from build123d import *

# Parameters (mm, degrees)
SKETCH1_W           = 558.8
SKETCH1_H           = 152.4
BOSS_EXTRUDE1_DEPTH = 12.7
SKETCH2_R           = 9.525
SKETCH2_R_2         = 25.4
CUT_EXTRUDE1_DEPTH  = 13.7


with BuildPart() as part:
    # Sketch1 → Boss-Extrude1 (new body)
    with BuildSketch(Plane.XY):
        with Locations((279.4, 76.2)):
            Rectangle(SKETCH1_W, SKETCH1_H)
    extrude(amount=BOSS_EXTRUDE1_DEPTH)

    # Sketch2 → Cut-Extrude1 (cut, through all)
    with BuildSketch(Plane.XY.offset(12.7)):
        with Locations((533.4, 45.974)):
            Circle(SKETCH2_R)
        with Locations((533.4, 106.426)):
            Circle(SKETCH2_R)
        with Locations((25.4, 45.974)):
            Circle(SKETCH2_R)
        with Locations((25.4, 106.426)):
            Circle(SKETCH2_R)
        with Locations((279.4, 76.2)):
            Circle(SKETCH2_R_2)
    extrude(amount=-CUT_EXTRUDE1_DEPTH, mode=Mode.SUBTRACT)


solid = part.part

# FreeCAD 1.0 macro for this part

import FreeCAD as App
import Part
import Sketcher

V = App.Vector
Q = App.Units.Quantity

doc = App.newDocument("Part")
params = doc.addObject("Spreadsheet::Sheet", "Params")
for row, (alias, value) in enumerate([
    ("sketch1_width", "22 in"),
    ("sketch1_height", "6 in"),
    ("pad1_length", "0.5 in"),
    ("sketch2_diameter", "2 in"),
    ("sketch2_diameter2", "0.75 in"),
], start=1):
    params.set(f"A{row}", alias)
    params.set(f"B{row}", "=" + value)
    params.setAlias(f"B{row}", alias)

body = doc.addObject("PartDesign::Body", "Body")

# Sketch on XY plane
sketch1 = body.newObject("Sketcher::SketchObject", "Sketch")
sketch1.AttachmentSupport = (doc.getObject("XY_Plane"), [""])
sketch1.MapMode = "FlatFace"
sketch1.addGeometry(Part.LineSegment(V(0, 152.4, 0), V(0, 0, 0)), False)
sketch1.addGeometry(Part.LineSegment(V(0, 0, 0), V(558.8, 0, 0)), False)
sketch1.addGeometry(Part.LineSegment(V(558.8, 0, 0), V(558.8, 152.4, 0)), False)
sketch1.addGeometry(Part.LineSegment(V(558.8, 152.4, 0), V(0, 152.4, 0)), False)
sketch1.addConstraint(Sketcher.Constraint("Coincident", 0, 2, 1, 1))
sketch1.addConstraint(Sketcher.Constraint("Coincident", 1, 2, 2, 1))
sketch1.addConstraint(Sketcher.Constraint("Coincident", 2, 2, 3, 1))
sketch1.addConstraint(Sketcher.Constraint("Coincident", 3, 2, 0, 1))
sketch1.addConstraint(Sketcher.Constraint("Vertical", 0))
sketch1.addConstraint(Sketcher.Constraint("Horizontal", 1))
sketch1.addConstraint(Sketcher.Constraint("Vertical", 2))
sketch1.addConstraint(Sketcher.Constraint("Horizontal", 3))
sketch1.addConstraint(Sketcher.Constraint("Coincident", 0, 2, -1, 1))
sketch1.addConstraint(Sketcher.Constraint("DistanceX", 1, 1, 1, 2, Q("22 in")))
sketch1.addConstraint(Sketcher.Constraint("DistanceY", 0, 2, 0, 1, Q("6 in")))
sketch1.setExpression("Constraints[9]", "Params.sketch1_width")
sketch1.setExpression("Constraints[10]", "Params.sketch1_height")
pad1 = body.newObject("PartDesign::Pad", "Pad")
pad1.Profile = sketch1
pad1.setExpression("Length", "Params.pad1_length")

# Sketch on XY plane
sketch2 = body.newObject("Sketcher::SketchObject", "Sketch001")
sketch2.AttachmentSupport = (doc.getObject("XY_Plane"), [""])
sketch2.MapMode = "FlatFace"
sketch2.AttachmentOffset = App.Placement(V(0, 0, 0.5 * 25.4), App.Rotation())
sketch2.addGeometry(Part.Circle(V(533.4, 45.974, 0), V(0, 0, 1), 9.525), False)
sketch2.addGeometry(Part.Circle(V(533.4, 106.426, 0), V(0, 0, 1), 9.525), False)
sketch2.addGeometry(Part.Circle(V(25.4, 45.974, 0), V(0, 0, 1), 9.525), False)
sketch2.addGeometry(Part.Circle(V(25.4, 106.426, 0), V(0, 0, 1), 9.525), False)
sketch2.addGeometry(Part.Circle(V(279.4, 76.2, 0), V(0, 0, 1), 25.4), False)
sketch2.addConstraint(Sketcher.Constraint("Equal", 0, 1))
sketch2.addConstraint(Sketcher.Constraint("Equal", 1, 2))
sketch2.addConstraint(Sketcher.Constraint("Equal", 2, 3))
sketch2.addConstraint(Sketcher.Constraint("Horizontal", 0, 3, 2, 3))
sketch2.addConstraint(Sketcher.Constraint("Horizontal", 1, 3, 3, 3))
sketch2.addConstraint(Sketcher.Constraint("Vertical", 0, 3, 1, 3))
sketch2.addConstraint(Sketcher.Constraint("Vertical", 2, 3, 3, 3))
sketch2.addConstraint(Sketcher.Constraint("Diameter", 4, Q("2 in")))
sketch2.addConstraint(Sketcher.Constraint("Diameter", 0, Q("0.75 in")))
sketch2.addConstraint(Sketcher.Constraint("DistanceX", -1, 1, 0, 3, Q("21 in")))
sketch2.addConstraint(Sketcher.Constraint("DistanceX", -1, 1, 2, 3, Q("1 in")))
sketch2.addConstraint(Sketcher.Constraint("DistanceX", -1, 1, 4, 3, Q("11 in")))
sketch2.addConstraint(Sketcher.Constraint("DistanceY", -1, 1, 4, 3, Q("3 in")))
sketch2.addConstraint(Sketcher.Constraint("DistanceY", -1, 1, 0, 3, Q("1.81 in")))
sketch2.addConstraint(Sketcher.Constraint("DistanceY", -1, 1, 1, 3, Q("4.19 in")))
sketch2.setExpression("Constraints[7]", "Params.sketch2_diameter")
sketch2.setExpression("Constraints[8]", "Params.sketch2_diameter2")
pocket1 = body.newObject("PartDesign::Pocket", "Pocket")
pocket1.Profile = sketch2
pocket1.Type = "ThroughAll"

doc.recompute()
